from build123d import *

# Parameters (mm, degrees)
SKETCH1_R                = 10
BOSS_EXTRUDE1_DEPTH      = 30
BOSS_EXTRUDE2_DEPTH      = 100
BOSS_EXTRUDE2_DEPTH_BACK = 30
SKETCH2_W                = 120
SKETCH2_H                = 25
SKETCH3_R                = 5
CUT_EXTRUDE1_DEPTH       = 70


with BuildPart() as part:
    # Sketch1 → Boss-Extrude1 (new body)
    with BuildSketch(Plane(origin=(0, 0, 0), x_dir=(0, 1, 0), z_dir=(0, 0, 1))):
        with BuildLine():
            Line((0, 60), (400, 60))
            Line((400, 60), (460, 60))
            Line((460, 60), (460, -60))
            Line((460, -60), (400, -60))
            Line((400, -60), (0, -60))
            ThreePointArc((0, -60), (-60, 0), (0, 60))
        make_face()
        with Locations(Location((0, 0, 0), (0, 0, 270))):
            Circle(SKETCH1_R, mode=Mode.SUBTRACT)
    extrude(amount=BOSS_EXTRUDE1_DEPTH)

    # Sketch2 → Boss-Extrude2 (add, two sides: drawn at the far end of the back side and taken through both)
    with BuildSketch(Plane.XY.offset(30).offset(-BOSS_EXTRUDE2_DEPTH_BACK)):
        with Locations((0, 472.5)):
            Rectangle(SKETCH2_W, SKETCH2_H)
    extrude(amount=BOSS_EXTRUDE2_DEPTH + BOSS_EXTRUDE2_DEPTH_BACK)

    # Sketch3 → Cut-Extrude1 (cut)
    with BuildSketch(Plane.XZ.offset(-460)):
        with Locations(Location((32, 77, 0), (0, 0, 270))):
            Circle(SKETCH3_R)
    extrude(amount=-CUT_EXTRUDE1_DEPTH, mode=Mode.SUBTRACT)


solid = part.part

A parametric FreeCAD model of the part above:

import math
import FreeCAD as App
import Part
import Sketcher

V = App.Vector
Q = App.Units.Quantity


def add_polygon(sketch, points):
    """Adds a closed chain of lines whose ends are joined by coincident constraints."""
    first, n = sketch.GeometryCount, len(points)
    for a, b in zip(points, points[1:] + points[:1]):
        sketch.addGeometry(Part.LineSegment(App.Vector(*a, 0), App.Vector(*b, 0)), False)
    for i in range(n):
        sketch.addConstraint(Sketcher.Constraint("Coincident", first + i, 2, first + (i + 1) % n, 1))

doc = App.newDocument("Part")
body = doc.addObject("PartDesign::Body", "Body")

# Sketch on XY plane
sketch1 = body.newObject("Sketcher::SketchObject", "Sketch")
sketch1.AttachmentSupport = (doc.getObject("XY_Plane"), [""])
sketch1.MapMode = "FlatFace"
sketch1.addGeometry([
    Part.LineSegment(V(-60, 460, 0), V(-60, 0, 0)),  # 0
    Part.ArcOfCircle(Part.Circle(V(0, 0, 0), V(0, 0, 1), 60), math.radians(180), math.radians(360)),  # 1
    Part.LineSegment(V(60, 0, 0), V(60, 460, 0)),  # 2
    Part.LineSegment(V(60, 460, 0), V(-60, 460, 0)),  # 3
    Part.Circle(V(0, 0, 0), V(0, 0, 1), 10),  # 4
], False)
sketch1.addConstraint([
    Sketcher.Constraint("Tangent", 0, 2, 1, 1),
    Sketcher.Constraint("Tangent", 1, 2, 2, 1),
    Sketcher.Constraint("Coincident", 2, 2, 3, 1),
    Sketcher.Constraint("Coincident", 3, 2, 0, 1),
    Sketcher.Constraint("Vertical", 0),
    Sketcher.Constraint("Vertical", 2),
    Sketcher.Constraint("Horizontal", 3),
    Sketcher.Constraint("Coincident", 1, 3, -1, 1),
    Sketcher.Constraint("Coincident", 4, 3, -1, 1),
    Sketcher.Constraint("Diameter", 4, Q("20 mm")),
    Sketcher.Constraint("Radius", 1, Q("60 mm")),
    Sketcher.Constraint("DistanceY", 0, 2, 0, 1, Q("460 mm")),
])
pad1 = body.newObject("PartDesign::Pad", "Pad")
pad1.Profile = sketch1
pad1.Length = 30

# Sketch on XY plane
sketch2 = body.newObject("Sketcher::SketchObject", "Sketch001")
sketch2.AttachmentSupport = (doc.getObject("XY_Plane"), [""])
sketch2.MapMode = "FlatFace"
sketch2.AttachmentOffset = App.Placement(V(0, 0, 30), App.Rotation())
add_polygon(sketch2, [(-60, 485), (-60, 460), (60, 460), (60, 485)])  # lines 0-3
sketch2.addConstraint([
    Sketcher.Constraint("Vertical", 0),
    Sketcher.Constraint("Horizontal", 1),
    Sketcher.Constraint("Vertical", 2),
    Sketcher.Constraint("Horizontal", 3),
    Sketcher.Constraint("DistanceX", 1, 1, 1, 2, Q("120 mm")),
    Sketcher.Constraint("DistanceY", 0, 2, 0, 1, Q("25 mm")),
    Sketcher.Constraint("DistanceX", 0, 2, -1, 1, Q("60 mm")),
    Sketcher.Constraint("DistanceY", -1, 1, 0, 2, Q("460 mm")),
])
pad2 = body.newObject("PartDesign::Pad", "Pad001")
pad2.Profile = sketch2
pad2.Type = "TwoLengths"
pad2.Length = 100
pad2.Length2 = 30

# Sketch on XZ plane
sketch3 = body.newObject("Sketcher::SketchObject", "Sketch002")
sketch3.AttachmentSupport = (doc.getObject("XZ_Plane"), [""])
sketch3.MapMode = "FlatFace"
sketch3.AttachmentOffset = App.Placement(V(0, 0, -460), App.Rotation())
sketch3.addGeometry(Part.Circle(V(32, 77, 0), V(0, 0, 1), 5), False)
sketch3.addConstraint([
    Sketcher.Constraint("Diameter", 0, Q("10 mm")),
    Sketcher.Constraint("DistanceX", -1, 1, 0, 3, Q("32 mm")),
    Sketcher.Constraint("DistanceY", -1, 1, 0, 3, Q("77 mm")),
])
pocket1 = body.newObject("PartDesign::Pocket", "Pocket")
pocket1.Profile = sketch3
pocket1.Length = 70

doc.recompute()
